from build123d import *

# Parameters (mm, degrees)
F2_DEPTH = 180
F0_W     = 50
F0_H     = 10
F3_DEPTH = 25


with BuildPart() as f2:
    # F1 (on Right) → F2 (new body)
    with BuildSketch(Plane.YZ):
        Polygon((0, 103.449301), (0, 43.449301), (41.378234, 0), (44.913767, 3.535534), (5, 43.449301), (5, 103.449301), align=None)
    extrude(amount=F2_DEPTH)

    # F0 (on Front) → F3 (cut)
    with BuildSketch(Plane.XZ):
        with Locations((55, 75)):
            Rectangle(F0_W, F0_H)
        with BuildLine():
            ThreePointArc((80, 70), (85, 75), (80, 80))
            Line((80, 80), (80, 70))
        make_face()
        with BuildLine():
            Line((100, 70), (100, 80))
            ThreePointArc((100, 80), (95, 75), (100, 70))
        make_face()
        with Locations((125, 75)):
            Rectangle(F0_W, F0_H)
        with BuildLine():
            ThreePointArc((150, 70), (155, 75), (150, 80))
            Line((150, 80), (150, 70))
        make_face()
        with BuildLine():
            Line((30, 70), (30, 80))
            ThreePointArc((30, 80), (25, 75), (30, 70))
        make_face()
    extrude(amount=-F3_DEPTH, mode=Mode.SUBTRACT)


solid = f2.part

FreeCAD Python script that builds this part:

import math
import FreeCAD as App
import Part
import Sketcher

V = App.Vector
Q = App.Units.Quantity

doc = App.newDocument("Part")
params = doc.addObject("Spreadsheet::Sheet", "Params")
for row, (alias, value) in enumerate([
    ("sketch1_width", "5 mm"),
    ("sketch1_height", "60 mm"),
    ("sketch1_length", "60 mm"),
    ("sketch1_length2", "4.999999 mm"),
    ("pad1_length", "180 mm"),
    ("sketch2_radius", "5 mm"),
    ("sketch2_width", "50 mm"),
    ("pocket1_length", "25 mm"),
], start=1):
    params.set(f"A{row}", alias)
    params.set(f"B{row}", "=" + value)
    params.setAlias(f"B{row}", alias)

body = doc.addObject("PartDesign::Body", "Body")

# Sketch on YZ plane
sketch1 = body.newObject("Sketcher::SketchObject", "Sketch")
sketch1.AttachmentSupport = (doc.getObject("YZ_Plane"), [""])
sketch1.MapMode = "FlatFace"
sketch1.addGeometry([
    Part.LineSegment(V(0, 103.449301, 0), V(0, 43.449301, 0)),  # 0
    Part.LineSegment(V(0, 43.449301, 0), V(41.378234, 0, 0)),  # 1
    Part.LineSegment(V(41.378234, 0, 0), V(44.913767, 3.535534, 0)),  # 2
    Part.LineSegment(V(44.913767, 3.535534, 0), V(5, 43.449301, 0)),  # 3
    Part.LineSegment(V(5, 43.449301, 0), V(5, 103.449301, 0)),  # 4
    Part.LineSegment(V(5, 103.449301, 0), V(0, 103.449301, 0)),  # 5
], False)
sketch1.addConstraint([
    Sketcher.Constraint("Coincident", 0, 2, 1, 1),
    Sketcher.Constraint("Coincident", 1, 2, 2, 1),
    Sketcher.Constraint("Coincident", 2, 2, 3, 1),
    Sketcher.Constraint("Coincident", 3, 2, 4, 1),
    Sketcher.Constraint("Coincident", 4, 2, 5, 1),
    Sketcher.Constraint("Coincident", 5, 2, 0, 1),
    Sketcher.Constraint("Vertical", 0),
    Sketcher.Constraint("Vertical", 4),
    Sketcher.Constraint("Horizontal", 5),
    Sketcher.Constraint("PointOnObject", 0, 2, -2),
    Sketcher.Constraint("PointOnObject", 1, 2, -1),
    Sketcher.Constraint("Perpendicular", 2, 3),
    Sketcher.Constraint("Horizontal", 0, 2, 3, 2),
    Sketcher.Constraint("DistanceX", 5, 2, 5, 1, 5.0),
    Sketcher.Constraint("DistanceY", 0, 2, 0, 1, 60.0),
    Sketcher.Constraint("Angle", 2, Q("45.000008 deg")),
    Sketcher.Constraint("Distance", 1, 60.0),
    Sketcher.Constraint("Distance", 2, 4.999999),
])
sketch1.setExpression("Constraints[13]", "Params.sketch1_width")
sketch1.setExpression("Constraints[14]", "Params.sketch1_height")
sketch1.setExpression("Constraints[16]", "Params.sketch1_length")
sketch1.setExpression("Constraints[17]", "Params.sketch1_length2")
pad1 = body.newObject("PartDesign::Pad", "Pad")
pad1.Profile = sketch1
pad1.setExpression("Length", "Params.pad1_length")

# Sketch on XZ plane
sketch2 = body.newObject("Sketcher::SketchObject", "Sketch001")
sketch2.AttachmentSupport = (doc.getObject("XZ_Plane"), [""])
sketch2.MapMode = "FlatFace"
sketch2.addGeometry([
    Part.LineSegment(V(30, 70, 0), V(80, 70, 0)),  # 0
    Part.ArcOfCircle(Part.Circle(V(80, 75, 0), V(0, 0, 1), 5), math.radians(-90), math.radians(90)),  # 1
    Part.LineSegment(V(80, 80, 0), V(30, 80, 0)),  # 2
    Part.ArcOfCircle(Part.Circle(V(30, 75, 0), V(0, 0, 1), 5), math.radians(90), math.radians(270)),  # 3
    Part.ArcOfCircle(Part.Circle(V(100, 75, 0), V(0, 0, 1), 5), math.radians(90), math.radians(270)),  # 4
    Part.LineSegment(V(100, 70, 0), V(150, 70, 0)),  # 5
    Part.ArcOfCircle(Part.Circle(V(150, 75, 0), V(0, 0, 1), 5), math.radians(-90), math.radians(90)),  # 6
    Part.LineSegment(V(150, 80, 0), V(100, 80, 0)),  # 7
], False)
sketch2.addConstraint([
    Sketcher.Constraint("Tangent", 0, 2, 1, 1),
    Sketcher.Constraint("Tangent", 1, 2, 2, 1),
    Sketcher.Constraint("Tangent", 2, 2, 3, 1),
    Sketcher.Constraint("Tangent", 3, 2, 0, 1),
    Sketcher.Constraint("Tangent", 4, 2, 5, 1),
    Sketcher.Constraint("Tangent", 5, 2, 6, 1),
    Sketcher.Constraint("Tangent", 6, 2, 7, 1),
    Sketcher.Constraint("Tangent", 7, 2, 4, 1),
    Sketcher.Constraint("Horizontal", 0),
    Sketcher.Constraint("Horizontal", 2),
    Sketcher.Constraint("Horizontal", 5),
    Sketcher.Constraint("Horizontal", 7),
    Sketcher.Constraint("Equal", 3, 4),
    Sketcher.Constraint("Horizontal", 3, 3, 4, 3),
    Sketcher.Constraint("Equal", 2, 5),
    Sketcher.Constraint("Radius", 1, 5.0),
    Sketcher.Constraint("DistanceX", 0, 1, 0, 2, 50.0),
    Sketcher.Constraint("DistanceX", -1, 1, 1, 3, 80.0),
    Sketcher.Constraint("DistanceY", -1, 1, 1, 3, 75.0),
    Sketcher.Constraint("DistanceX", -1, 1, 4, 3, 100.0),
])
sketch2.setExpression("Constraints[15]", "Params.sketch2_radius")
sketch2.setExpression("Constraints[16]", "Params.sketch2_width")
pocket1 = body.newObject("PartDesign::Pocket", "Pocket")
pocket1.Profile = sketch2
pocket1.setExpression("Length", "Params.pocket1_length")

doc.recompute()
